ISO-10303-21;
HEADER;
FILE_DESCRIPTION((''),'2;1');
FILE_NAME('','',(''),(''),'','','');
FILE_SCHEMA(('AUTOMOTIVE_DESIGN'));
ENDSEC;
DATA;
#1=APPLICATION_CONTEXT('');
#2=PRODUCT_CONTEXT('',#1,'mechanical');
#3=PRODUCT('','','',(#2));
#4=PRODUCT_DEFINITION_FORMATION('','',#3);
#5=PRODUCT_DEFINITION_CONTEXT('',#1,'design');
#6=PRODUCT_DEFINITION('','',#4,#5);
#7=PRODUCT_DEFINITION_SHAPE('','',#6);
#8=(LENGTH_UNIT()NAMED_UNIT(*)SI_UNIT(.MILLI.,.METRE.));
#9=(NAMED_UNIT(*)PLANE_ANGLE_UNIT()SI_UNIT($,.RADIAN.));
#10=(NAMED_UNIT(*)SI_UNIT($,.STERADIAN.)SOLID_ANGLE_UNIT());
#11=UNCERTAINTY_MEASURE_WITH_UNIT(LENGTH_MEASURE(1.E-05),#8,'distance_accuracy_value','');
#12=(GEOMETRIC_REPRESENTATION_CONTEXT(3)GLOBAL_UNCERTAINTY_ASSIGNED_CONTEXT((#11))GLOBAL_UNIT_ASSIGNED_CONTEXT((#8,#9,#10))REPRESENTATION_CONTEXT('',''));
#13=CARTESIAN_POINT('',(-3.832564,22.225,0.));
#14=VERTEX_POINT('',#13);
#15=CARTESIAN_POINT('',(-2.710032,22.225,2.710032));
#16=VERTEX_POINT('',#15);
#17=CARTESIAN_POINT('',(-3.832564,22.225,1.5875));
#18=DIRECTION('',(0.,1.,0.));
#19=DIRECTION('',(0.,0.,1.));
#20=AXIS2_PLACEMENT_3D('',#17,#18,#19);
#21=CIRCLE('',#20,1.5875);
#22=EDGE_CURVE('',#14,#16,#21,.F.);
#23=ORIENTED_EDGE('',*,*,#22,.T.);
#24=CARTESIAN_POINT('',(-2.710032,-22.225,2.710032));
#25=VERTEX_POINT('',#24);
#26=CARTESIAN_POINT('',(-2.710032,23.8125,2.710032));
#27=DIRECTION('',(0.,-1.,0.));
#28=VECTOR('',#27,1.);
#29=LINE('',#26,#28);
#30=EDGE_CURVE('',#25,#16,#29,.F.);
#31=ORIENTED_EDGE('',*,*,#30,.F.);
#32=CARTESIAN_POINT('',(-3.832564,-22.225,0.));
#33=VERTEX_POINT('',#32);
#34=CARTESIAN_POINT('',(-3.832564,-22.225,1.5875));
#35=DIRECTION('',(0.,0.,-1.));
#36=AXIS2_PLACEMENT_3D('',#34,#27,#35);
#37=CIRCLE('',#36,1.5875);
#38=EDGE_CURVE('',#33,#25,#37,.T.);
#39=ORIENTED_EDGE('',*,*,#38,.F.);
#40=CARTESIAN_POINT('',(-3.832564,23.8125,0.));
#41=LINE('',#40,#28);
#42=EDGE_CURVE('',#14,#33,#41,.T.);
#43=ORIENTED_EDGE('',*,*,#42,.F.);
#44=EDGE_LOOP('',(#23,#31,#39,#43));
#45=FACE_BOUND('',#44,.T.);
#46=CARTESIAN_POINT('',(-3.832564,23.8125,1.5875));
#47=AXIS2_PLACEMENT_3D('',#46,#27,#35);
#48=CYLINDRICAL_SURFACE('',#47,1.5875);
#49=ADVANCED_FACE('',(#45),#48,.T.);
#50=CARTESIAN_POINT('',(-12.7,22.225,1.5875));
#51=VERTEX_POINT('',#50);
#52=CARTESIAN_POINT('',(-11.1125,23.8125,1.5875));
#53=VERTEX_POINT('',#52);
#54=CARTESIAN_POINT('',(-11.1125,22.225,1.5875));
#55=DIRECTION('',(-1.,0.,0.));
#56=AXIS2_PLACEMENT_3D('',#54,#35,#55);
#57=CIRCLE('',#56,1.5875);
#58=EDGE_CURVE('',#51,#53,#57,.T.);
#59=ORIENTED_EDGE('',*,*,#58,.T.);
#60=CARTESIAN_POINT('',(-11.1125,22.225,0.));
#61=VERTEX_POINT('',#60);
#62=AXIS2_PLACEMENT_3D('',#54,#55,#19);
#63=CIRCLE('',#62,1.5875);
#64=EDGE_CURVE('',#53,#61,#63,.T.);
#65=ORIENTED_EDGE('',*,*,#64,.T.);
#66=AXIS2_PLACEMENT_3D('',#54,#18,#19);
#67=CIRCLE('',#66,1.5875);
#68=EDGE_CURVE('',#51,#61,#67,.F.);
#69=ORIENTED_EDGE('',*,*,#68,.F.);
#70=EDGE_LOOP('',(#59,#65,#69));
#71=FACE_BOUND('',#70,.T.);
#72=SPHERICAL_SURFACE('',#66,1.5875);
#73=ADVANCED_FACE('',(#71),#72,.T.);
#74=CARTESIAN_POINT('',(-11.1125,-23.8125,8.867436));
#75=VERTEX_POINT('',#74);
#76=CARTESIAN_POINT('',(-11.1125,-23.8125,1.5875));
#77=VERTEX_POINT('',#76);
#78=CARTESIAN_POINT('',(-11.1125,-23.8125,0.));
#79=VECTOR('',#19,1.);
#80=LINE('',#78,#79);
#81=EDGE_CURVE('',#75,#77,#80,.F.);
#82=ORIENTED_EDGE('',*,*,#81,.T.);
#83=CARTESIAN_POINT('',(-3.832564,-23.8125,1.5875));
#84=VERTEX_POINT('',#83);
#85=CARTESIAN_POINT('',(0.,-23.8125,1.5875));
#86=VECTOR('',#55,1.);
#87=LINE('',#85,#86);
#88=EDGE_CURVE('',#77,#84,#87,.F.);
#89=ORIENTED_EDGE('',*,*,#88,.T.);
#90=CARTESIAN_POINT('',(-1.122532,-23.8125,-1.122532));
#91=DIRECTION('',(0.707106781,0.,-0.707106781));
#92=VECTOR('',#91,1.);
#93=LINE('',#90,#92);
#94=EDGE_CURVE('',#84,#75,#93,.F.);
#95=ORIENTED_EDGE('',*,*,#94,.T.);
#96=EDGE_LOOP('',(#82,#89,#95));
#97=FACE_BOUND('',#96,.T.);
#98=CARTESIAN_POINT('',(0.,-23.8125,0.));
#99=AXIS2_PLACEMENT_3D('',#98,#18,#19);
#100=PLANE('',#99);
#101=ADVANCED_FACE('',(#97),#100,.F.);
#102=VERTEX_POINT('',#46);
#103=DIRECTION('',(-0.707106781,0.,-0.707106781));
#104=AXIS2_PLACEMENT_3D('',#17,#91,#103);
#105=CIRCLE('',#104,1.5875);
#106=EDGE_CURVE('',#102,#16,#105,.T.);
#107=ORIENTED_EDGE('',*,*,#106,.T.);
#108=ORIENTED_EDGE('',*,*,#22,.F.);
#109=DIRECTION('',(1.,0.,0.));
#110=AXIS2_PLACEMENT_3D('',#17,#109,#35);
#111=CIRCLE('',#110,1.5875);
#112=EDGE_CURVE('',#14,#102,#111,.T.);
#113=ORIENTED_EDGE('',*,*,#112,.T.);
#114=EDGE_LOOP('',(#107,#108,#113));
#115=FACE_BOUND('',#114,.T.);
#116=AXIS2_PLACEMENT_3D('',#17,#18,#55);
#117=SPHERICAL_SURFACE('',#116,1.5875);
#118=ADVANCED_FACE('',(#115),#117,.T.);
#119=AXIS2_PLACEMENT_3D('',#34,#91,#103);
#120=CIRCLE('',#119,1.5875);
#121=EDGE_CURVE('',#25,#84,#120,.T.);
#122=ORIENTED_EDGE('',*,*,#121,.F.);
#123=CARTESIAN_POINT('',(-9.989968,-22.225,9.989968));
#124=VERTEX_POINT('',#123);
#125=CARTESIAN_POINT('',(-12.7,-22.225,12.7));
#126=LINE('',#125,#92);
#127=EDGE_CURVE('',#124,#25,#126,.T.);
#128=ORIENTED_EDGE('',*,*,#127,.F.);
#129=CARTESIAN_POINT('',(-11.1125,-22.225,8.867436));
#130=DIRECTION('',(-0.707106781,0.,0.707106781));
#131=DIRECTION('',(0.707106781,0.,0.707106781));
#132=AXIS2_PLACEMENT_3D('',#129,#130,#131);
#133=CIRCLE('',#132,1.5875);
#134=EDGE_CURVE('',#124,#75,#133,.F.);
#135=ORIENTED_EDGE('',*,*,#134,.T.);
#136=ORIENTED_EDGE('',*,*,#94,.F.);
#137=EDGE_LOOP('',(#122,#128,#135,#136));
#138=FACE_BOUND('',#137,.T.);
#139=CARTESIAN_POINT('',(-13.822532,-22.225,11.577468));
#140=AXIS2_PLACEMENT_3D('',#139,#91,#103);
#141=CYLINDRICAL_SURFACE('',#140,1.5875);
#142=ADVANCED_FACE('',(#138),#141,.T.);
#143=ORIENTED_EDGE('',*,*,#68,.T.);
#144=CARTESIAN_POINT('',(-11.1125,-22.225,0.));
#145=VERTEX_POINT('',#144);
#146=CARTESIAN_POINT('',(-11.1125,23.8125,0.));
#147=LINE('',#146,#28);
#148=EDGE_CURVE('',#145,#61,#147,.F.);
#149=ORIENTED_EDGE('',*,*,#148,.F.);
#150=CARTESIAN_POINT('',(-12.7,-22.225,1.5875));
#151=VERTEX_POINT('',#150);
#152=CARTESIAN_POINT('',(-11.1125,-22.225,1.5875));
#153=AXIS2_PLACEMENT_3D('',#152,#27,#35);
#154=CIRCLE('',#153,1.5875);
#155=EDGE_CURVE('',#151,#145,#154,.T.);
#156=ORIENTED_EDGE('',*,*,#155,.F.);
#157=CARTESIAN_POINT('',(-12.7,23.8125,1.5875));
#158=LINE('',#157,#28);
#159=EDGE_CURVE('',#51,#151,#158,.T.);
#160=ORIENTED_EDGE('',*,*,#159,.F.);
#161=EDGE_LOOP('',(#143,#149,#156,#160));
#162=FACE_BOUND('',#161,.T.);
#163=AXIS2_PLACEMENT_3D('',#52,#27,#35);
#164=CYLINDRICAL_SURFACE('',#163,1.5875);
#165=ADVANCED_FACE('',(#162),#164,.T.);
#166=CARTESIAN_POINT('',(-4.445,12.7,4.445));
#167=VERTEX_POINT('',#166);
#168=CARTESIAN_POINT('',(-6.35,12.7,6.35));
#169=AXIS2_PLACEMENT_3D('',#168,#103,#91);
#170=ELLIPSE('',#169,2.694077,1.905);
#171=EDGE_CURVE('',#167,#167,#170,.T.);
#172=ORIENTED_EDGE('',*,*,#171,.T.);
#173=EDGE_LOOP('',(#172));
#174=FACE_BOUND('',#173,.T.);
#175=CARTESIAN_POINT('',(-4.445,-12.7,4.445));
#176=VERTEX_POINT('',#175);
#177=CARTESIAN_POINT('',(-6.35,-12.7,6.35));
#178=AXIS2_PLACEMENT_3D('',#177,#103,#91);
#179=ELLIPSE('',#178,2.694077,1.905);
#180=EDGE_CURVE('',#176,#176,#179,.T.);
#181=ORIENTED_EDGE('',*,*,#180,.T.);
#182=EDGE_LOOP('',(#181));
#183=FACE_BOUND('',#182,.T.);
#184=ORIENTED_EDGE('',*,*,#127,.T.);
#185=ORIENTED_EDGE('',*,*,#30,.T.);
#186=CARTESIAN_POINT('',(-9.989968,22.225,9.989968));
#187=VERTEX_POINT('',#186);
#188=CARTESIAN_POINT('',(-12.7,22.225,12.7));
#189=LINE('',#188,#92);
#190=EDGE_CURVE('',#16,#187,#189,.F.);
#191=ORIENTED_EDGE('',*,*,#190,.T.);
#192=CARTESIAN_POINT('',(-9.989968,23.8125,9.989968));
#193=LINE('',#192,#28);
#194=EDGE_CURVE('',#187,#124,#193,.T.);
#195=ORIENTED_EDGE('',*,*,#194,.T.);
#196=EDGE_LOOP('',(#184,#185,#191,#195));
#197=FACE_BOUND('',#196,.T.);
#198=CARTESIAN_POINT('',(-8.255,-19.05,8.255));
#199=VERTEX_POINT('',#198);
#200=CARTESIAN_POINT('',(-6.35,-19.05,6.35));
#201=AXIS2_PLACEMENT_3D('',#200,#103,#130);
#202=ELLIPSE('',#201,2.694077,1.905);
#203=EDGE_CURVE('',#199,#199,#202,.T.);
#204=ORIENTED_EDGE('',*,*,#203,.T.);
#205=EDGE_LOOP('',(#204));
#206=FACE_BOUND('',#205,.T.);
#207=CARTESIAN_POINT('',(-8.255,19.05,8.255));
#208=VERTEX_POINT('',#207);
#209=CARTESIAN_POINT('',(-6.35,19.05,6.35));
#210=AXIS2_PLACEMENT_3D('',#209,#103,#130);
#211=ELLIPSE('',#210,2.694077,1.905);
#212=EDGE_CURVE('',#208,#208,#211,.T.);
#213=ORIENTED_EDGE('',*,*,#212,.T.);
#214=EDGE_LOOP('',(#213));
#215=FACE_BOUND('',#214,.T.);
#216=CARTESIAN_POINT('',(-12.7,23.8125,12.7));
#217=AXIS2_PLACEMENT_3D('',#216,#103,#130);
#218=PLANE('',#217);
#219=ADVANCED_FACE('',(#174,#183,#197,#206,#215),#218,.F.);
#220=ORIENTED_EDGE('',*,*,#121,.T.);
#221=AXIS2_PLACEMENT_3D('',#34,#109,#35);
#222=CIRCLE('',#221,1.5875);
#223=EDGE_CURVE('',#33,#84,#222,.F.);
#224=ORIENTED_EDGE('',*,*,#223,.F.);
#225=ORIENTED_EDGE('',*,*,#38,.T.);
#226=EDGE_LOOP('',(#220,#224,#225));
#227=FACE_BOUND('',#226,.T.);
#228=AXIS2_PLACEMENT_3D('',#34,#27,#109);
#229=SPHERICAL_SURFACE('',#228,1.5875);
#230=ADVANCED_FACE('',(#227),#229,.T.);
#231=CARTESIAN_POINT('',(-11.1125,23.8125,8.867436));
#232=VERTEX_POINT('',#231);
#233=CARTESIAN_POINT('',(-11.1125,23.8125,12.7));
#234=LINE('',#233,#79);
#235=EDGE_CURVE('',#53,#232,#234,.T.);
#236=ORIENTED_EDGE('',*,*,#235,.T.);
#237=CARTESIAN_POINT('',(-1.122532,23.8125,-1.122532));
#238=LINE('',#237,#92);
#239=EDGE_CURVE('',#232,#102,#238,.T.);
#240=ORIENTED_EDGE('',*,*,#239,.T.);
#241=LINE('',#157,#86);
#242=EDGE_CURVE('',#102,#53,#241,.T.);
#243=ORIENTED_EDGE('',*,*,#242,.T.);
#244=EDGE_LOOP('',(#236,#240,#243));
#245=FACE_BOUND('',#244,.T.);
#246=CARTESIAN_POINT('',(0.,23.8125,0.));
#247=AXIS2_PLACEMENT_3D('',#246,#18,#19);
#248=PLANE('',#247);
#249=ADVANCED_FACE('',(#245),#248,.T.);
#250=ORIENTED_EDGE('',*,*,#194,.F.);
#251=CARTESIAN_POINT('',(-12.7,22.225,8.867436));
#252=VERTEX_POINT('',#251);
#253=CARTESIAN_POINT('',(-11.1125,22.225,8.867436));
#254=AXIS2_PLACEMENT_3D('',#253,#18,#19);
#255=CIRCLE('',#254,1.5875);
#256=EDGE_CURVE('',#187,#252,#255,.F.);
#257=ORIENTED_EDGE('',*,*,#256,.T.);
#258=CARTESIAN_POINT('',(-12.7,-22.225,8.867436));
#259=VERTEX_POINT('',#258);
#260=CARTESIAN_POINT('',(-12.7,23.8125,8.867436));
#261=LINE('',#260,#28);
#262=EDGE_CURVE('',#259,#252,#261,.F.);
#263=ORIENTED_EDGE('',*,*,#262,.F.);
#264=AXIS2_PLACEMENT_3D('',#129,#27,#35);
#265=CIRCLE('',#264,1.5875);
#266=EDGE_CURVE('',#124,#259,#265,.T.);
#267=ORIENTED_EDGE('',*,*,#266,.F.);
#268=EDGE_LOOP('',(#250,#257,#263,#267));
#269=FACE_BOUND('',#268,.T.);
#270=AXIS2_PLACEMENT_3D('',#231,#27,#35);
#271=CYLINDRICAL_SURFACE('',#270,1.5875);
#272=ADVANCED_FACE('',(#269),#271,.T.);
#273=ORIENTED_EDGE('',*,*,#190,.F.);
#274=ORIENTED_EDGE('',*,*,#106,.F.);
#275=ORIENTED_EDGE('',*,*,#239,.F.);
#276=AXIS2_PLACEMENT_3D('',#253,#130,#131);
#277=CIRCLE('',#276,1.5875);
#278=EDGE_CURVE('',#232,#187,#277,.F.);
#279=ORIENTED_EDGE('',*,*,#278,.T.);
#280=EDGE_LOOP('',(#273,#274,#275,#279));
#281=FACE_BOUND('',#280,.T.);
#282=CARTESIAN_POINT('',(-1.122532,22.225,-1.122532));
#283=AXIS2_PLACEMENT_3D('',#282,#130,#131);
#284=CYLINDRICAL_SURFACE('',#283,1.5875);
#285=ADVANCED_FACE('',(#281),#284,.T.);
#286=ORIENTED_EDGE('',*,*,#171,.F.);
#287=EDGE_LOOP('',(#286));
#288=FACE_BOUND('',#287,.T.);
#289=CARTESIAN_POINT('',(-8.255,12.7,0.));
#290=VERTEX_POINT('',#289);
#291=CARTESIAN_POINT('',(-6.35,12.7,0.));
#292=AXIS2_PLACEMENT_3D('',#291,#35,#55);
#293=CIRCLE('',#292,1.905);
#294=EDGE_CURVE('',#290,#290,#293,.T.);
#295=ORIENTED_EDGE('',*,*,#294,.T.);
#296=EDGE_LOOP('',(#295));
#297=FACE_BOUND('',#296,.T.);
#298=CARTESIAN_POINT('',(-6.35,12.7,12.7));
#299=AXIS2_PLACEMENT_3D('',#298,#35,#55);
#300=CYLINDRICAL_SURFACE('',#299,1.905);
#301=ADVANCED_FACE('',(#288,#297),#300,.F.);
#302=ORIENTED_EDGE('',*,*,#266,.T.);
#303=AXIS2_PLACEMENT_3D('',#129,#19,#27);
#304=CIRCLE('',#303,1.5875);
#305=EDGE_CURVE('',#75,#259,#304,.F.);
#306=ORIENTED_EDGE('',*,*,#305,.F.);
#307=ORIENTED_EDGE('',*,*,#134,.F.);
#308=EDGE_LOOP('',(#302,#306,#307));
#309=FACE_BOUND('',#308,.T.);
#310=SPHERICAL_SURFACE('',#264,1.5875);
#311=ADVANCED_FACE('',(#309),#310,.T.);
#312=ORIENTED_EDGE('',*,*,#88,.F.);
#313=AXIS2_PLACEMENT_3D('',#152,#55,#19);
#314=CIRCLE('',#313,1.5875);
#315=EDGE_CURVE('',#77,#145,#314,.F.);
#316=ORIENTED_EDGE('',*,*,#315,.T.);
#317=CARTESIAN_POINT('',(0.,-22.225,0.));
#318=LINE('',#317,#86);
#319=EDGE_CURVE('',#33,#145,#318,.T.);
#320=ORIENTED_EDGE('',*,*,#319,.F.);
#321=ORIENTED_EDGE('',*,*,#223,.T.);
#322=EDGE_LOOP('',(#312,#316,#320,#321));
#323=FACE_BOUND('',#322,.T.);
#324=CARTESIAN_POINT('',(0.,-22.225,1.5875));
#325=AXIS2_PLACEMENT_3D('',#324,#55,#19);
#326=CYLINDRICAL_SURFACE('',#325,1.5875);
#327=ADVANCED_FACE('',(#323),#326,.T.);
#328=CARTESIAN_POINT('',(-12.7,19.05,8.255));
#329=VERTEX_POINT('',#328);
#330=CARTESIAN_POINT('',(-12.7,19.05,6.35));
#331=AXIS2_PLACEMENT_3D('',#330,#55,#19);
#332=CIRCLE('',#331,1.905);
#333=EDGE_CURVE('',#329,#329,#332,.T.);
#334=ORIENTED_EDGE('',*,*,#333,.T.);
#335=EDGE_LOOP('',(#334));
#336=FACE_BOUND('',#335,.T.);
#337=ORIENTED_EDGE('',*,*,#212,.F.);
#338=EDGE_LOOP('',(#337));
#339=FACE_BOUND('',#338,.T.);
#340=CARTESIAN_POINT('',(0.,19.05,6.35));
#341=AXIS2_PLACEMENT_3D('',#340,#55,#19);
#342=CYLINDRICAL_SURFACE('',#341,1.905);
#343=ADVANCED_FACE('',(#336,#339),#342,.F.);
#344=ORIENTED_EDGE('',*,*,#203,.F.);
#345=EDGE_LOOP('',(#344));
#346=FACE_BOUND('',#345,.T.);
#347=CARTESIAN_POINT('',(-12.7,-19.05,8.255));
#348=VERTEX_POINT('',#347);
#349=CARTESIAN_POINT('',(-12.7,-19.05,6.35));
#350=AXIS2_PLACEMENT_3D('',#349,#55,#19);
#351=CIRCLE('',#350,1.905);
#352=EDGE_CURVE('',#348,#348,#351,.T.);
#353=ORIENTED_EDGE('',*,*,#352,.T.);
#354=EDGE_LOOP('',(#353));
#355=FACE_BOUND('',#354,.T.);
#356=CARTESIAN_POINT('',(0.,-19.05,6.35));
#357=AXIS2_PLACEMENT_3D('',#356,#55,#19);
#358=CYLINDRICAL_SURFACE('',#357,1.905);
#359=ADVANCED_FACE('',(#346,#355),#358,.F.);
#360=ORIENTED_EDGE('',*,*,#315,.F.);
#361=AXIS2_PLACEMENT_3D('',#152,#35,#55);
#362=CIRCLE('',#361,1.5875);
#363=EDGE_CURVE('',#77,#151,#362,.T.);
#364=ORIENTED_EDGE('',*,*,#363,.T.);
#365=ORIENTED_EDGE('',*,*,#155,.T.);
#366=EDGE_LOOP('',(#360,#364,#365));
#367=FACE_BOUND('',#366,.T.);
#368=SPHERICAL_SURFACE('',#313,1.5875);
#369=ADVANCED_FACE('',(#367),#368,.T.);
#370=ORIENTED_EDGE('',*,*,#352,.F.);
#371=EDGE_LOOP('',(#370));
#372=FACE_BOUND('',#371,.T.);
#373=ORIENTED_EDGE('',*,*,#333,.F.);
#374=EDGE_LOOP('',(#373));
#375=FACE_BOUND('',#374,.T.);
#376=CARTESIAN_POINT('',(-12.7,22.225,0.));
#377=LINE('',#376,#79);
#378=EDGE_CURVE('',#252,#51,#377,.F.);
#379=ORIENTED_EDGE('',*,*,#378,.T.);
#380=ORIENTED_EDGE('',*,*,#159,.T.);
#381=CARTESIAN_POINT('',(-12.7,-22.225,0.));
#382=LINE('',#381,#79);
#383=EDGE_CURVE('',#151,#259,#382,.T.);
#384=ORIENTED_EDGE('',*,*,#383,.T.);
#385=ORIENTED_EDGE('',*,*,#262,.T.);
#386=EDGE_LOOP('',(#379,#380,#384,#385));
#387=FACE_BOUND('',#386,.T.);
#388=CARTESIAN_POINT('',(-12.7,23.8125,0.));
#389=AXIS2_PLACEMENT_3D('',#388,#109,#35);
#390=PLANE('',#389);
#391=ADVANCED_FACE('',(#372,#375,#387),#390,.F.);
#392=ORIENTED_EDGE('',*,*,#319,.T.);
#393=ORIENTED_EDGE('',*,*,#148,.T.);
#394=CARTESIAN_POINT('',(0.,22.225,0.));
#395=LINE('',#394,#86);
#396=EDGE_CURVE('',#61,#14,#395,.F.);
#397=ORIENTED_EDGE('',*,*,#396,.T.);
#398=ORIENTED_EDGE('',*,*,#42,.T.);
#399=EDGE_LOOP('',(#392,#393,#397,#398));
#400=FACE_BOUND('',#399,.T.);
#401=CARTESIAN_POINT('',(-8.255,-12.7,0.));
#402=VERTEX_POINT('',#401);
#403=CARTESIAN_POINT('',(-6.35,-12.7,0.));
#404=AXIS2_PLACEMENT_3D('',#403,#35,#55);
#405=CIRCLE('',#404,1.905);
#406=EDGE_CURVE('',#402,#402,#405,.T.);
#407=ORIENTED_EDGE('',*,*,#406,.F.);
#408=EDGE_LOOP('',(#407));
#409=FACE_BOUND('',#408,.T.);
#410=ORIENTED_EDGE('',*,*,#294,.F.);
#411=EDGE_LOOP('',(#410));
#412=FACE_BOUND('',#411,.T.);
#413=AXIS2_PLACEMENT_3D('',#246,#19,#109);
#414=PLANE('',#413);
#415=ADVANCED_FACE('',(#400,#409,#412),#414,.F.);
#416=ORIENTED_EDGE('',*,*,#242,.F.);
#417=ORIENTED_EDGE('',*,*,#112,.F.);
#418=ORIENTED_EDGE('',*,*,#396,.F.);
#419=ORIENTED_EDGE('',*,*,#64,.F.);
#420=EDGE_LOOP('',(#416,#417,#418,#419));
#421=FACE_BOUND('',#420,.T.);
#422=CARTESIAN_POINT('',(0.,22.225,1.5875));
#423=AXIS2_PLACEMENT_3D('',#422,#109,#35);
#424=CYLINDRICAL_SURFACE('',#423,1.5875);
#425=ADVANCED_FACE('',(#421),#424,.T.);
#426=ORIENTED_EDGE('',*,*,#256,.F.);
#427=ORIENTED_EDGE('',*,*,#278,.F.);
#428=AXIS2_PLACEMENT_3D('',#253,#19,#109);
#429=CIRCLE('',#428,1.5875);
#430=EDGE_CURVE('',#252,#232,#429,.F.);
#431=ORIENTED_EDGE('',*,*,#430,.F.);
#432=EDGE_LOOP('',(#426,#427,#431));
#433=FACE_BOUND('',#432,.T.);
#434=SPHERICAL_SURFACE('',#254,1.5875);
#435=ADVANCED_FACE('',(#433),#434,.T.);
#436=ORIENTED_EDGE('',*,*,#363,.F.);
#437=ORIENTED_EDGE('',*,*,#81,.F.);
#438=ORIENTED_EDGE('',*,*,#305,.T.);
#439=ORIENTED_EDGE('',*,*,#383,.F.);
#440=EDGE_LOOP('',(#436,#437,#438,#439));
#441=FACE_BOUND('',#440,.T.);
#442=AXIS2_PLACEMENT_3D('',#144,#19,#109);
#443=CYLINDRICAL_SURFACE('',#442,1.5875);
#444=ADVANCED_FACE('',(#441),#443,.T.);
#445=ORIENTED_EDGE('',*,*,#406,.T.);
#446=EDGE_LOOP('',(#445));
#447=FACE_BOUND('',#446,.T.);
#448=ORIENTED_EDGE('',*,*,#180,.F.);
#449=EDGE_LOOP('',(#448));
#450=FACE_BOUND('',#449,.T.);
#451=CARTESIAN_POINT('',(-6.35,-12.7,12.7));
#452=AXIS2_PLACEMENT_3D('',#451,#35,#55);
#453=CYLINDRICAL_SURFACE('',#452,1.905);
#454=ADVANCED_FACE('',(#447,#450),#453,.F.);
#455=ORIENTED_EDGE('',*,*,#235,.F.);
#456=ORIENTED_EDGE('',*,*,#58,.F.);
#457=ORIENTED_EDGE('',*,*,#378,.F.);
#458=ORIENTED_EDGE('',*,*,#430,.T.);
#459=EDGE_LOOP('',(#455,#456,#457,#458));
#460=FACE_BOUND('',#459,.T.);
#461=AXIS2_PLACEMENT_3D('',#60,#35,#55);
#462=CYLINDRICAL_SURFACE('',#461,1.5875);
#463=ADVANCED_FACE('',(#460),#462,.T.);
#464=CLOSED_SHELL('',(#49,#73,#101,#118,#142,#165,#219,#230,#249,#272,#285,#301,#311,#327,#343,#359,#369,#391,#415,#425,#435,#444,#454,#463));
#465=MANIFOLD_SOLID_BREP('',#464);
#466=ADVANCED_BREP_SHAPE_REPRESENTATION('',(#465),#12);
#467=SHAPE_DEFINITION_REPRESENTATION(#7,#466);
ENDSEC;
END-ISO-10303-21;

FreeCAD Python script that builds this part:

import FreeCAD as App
import Part
import Sketcher

V = App.Vector
Q = App.Units.Quantity


def edges_at(feature, points):
    """Names of the edges that pass closest to the given points."""
    edges = feature.Shape.Edges
    near = lambda p: min(range(len(edges)), key=lambda i: edges[i].distToShape(Part.Vertex(*p))[0])
    return sorted({f"Edge{near(p) + 1}" for p in points})


def add_polygon(sketch, points):
    """Adds a closed chain of lines whose ends are joined by coincident constraints."""
    first, n = sketch.GeometryCount, len(points)
    for a, b in zip(points, points[1:] + points[:1]):
        sketch.addGeometry(Part.LineSegment(App.Vector(*a, 0), App.Vector(*b, 0)), False)
    for i in range(n):
        sketch.addConstraint(Sketcher.Constraint("Coincident", first + i, 2, first + (i + 1) % n, 1))

doc = App.newDocument("Part")
body = doc.addObject("PartDesign::Body", "Body")

# Sketch on XZ plane
sketch1 = body.newObject("Sketcher::SketchObject", "Sketch")
sketch1.AttachmentSupport = (doc.getObject("XZ_Plane"), [""])
sketch1.MapMode = "FlatFace"
add_polygon(sketch1, [(0, 0), (-13, 0), (-13, 13)])  # lines 0-2
sketch1.addConstraint([
    Sketcher.Constraint("Horizontal", 0),
    Sketcher.Constraint("Vertical", 1),
    Sketcher.Constraint("Coincident", 2, 2, -1, 1),
    Sketcher.Constraint("Equal", 0, 1),
    Sketcher.Constraint("DistanceX", 0, 2, 0, 1, Q("0.5 in")),
])
pad1 = body.newObject("PartDesign::Pad", "Pad")
pad1.Profile = sketch1
pad1.Length = Q("1.875 in")
pad1.Midplane = True

# Sketch on YZ plane
sketch2 = body.newObject("Sketcher::SketchObject", "Sketch001")
sketch2.AttachmentSupport = (doc.getObject("YZ_Plane"), [""])
sketch2.MapMode = "FlatFace"
sketch2.AttachmentOffset = App.Placement(V(0, 0, -0.5 * 25.4), App.Rotation())
sketch2.addGeometry([
    Part.Circle(V(19.1, 6.3, 0), V(0, 0, 1), 1.9),
    Part.Circle(V(-19.1, 6.3, 0), V(0, 0, 1), 1.9),
], False)
sketch2.addConstraint([
    Sketcher.Constraint("Equal", 0, 1),
    Sketcher.Constraint("Symmetric", 0, 3, 1, 3, -2),
    Sketcher.Constraint("Diameter", 0, Q("0.15 in")),
    Sketcher.Constraint("DistanceX", 1, 3, 0, 3, Q("1.5 in")),
    Sketcher.Constraint("DistanceY", -1, 1, 0, 3, Q("0.25 in")),
])
pocket1 = body.newObject("PartDesign::Pocket", "Pocket")
pocket1.Profile = sketch2
pocket1.Type = "ThroughAll"
pocket1.Reversed = True

# Sketch on XY plane
sketch3 = body.newObject("Sketcher::SketchObject", "Sketch002")
sketch3.AttachmentSupport = (doc.getObject("XY_Plane"), [""])
sketch3.MapMode = "FlatFace"
sketch3.addGeometry([
    Part.Circle(V(-6.3, -12.7, 0), V(0, 0, 1), 1.9),
    Part.Circle(V(-6.3, 12.7, 0), V(0, 0, 1), 1.9),
], False)
sketch3.addConstraint([
    Sketcher.Constraint("Equal", 0, 1),
    Sketcher.Constraint("Symmetric", 0, 3, 1, 3, -1),
    Sketcher.Constraint("Diameter", 0, Q("0.15 in")),
    Sketcher.Constraint("DistanceY", 0, 3, 1, 3, Q("1 in")),
    Sketcher.Constraint("DistanceX", 0, 3, -1, 1, Q("0.25 in")),
])
pocket2 = body.newObject("PartDesign::Pocket", "Pocket001")
pocket2.Profile = sketch3
pocket2.Type = "ThroughAll"
pocket2.Reversed = True
doc.recompute()

fillet = body.newObject("PartDesign::Fillet", "Fillet")
fillet.Base = (pocket2, edges_at(pocket2, [
    (-12.7, 23.812, 6.35),
    (-12.7, -23.812, 6.35),
    (-6.35, -23.812, 0),
    (-6.35, -23.812, 6.35),
    (-6.35, 23.812, 6.35),
    (-12.7, 0, 12.7),
    (-12.7, 0, 0),
    (0, 0, 0),
    (-6.35, 23.812, 0),
]))
fillet.Radius = Q("0.0625 in")

doc.recompute()
